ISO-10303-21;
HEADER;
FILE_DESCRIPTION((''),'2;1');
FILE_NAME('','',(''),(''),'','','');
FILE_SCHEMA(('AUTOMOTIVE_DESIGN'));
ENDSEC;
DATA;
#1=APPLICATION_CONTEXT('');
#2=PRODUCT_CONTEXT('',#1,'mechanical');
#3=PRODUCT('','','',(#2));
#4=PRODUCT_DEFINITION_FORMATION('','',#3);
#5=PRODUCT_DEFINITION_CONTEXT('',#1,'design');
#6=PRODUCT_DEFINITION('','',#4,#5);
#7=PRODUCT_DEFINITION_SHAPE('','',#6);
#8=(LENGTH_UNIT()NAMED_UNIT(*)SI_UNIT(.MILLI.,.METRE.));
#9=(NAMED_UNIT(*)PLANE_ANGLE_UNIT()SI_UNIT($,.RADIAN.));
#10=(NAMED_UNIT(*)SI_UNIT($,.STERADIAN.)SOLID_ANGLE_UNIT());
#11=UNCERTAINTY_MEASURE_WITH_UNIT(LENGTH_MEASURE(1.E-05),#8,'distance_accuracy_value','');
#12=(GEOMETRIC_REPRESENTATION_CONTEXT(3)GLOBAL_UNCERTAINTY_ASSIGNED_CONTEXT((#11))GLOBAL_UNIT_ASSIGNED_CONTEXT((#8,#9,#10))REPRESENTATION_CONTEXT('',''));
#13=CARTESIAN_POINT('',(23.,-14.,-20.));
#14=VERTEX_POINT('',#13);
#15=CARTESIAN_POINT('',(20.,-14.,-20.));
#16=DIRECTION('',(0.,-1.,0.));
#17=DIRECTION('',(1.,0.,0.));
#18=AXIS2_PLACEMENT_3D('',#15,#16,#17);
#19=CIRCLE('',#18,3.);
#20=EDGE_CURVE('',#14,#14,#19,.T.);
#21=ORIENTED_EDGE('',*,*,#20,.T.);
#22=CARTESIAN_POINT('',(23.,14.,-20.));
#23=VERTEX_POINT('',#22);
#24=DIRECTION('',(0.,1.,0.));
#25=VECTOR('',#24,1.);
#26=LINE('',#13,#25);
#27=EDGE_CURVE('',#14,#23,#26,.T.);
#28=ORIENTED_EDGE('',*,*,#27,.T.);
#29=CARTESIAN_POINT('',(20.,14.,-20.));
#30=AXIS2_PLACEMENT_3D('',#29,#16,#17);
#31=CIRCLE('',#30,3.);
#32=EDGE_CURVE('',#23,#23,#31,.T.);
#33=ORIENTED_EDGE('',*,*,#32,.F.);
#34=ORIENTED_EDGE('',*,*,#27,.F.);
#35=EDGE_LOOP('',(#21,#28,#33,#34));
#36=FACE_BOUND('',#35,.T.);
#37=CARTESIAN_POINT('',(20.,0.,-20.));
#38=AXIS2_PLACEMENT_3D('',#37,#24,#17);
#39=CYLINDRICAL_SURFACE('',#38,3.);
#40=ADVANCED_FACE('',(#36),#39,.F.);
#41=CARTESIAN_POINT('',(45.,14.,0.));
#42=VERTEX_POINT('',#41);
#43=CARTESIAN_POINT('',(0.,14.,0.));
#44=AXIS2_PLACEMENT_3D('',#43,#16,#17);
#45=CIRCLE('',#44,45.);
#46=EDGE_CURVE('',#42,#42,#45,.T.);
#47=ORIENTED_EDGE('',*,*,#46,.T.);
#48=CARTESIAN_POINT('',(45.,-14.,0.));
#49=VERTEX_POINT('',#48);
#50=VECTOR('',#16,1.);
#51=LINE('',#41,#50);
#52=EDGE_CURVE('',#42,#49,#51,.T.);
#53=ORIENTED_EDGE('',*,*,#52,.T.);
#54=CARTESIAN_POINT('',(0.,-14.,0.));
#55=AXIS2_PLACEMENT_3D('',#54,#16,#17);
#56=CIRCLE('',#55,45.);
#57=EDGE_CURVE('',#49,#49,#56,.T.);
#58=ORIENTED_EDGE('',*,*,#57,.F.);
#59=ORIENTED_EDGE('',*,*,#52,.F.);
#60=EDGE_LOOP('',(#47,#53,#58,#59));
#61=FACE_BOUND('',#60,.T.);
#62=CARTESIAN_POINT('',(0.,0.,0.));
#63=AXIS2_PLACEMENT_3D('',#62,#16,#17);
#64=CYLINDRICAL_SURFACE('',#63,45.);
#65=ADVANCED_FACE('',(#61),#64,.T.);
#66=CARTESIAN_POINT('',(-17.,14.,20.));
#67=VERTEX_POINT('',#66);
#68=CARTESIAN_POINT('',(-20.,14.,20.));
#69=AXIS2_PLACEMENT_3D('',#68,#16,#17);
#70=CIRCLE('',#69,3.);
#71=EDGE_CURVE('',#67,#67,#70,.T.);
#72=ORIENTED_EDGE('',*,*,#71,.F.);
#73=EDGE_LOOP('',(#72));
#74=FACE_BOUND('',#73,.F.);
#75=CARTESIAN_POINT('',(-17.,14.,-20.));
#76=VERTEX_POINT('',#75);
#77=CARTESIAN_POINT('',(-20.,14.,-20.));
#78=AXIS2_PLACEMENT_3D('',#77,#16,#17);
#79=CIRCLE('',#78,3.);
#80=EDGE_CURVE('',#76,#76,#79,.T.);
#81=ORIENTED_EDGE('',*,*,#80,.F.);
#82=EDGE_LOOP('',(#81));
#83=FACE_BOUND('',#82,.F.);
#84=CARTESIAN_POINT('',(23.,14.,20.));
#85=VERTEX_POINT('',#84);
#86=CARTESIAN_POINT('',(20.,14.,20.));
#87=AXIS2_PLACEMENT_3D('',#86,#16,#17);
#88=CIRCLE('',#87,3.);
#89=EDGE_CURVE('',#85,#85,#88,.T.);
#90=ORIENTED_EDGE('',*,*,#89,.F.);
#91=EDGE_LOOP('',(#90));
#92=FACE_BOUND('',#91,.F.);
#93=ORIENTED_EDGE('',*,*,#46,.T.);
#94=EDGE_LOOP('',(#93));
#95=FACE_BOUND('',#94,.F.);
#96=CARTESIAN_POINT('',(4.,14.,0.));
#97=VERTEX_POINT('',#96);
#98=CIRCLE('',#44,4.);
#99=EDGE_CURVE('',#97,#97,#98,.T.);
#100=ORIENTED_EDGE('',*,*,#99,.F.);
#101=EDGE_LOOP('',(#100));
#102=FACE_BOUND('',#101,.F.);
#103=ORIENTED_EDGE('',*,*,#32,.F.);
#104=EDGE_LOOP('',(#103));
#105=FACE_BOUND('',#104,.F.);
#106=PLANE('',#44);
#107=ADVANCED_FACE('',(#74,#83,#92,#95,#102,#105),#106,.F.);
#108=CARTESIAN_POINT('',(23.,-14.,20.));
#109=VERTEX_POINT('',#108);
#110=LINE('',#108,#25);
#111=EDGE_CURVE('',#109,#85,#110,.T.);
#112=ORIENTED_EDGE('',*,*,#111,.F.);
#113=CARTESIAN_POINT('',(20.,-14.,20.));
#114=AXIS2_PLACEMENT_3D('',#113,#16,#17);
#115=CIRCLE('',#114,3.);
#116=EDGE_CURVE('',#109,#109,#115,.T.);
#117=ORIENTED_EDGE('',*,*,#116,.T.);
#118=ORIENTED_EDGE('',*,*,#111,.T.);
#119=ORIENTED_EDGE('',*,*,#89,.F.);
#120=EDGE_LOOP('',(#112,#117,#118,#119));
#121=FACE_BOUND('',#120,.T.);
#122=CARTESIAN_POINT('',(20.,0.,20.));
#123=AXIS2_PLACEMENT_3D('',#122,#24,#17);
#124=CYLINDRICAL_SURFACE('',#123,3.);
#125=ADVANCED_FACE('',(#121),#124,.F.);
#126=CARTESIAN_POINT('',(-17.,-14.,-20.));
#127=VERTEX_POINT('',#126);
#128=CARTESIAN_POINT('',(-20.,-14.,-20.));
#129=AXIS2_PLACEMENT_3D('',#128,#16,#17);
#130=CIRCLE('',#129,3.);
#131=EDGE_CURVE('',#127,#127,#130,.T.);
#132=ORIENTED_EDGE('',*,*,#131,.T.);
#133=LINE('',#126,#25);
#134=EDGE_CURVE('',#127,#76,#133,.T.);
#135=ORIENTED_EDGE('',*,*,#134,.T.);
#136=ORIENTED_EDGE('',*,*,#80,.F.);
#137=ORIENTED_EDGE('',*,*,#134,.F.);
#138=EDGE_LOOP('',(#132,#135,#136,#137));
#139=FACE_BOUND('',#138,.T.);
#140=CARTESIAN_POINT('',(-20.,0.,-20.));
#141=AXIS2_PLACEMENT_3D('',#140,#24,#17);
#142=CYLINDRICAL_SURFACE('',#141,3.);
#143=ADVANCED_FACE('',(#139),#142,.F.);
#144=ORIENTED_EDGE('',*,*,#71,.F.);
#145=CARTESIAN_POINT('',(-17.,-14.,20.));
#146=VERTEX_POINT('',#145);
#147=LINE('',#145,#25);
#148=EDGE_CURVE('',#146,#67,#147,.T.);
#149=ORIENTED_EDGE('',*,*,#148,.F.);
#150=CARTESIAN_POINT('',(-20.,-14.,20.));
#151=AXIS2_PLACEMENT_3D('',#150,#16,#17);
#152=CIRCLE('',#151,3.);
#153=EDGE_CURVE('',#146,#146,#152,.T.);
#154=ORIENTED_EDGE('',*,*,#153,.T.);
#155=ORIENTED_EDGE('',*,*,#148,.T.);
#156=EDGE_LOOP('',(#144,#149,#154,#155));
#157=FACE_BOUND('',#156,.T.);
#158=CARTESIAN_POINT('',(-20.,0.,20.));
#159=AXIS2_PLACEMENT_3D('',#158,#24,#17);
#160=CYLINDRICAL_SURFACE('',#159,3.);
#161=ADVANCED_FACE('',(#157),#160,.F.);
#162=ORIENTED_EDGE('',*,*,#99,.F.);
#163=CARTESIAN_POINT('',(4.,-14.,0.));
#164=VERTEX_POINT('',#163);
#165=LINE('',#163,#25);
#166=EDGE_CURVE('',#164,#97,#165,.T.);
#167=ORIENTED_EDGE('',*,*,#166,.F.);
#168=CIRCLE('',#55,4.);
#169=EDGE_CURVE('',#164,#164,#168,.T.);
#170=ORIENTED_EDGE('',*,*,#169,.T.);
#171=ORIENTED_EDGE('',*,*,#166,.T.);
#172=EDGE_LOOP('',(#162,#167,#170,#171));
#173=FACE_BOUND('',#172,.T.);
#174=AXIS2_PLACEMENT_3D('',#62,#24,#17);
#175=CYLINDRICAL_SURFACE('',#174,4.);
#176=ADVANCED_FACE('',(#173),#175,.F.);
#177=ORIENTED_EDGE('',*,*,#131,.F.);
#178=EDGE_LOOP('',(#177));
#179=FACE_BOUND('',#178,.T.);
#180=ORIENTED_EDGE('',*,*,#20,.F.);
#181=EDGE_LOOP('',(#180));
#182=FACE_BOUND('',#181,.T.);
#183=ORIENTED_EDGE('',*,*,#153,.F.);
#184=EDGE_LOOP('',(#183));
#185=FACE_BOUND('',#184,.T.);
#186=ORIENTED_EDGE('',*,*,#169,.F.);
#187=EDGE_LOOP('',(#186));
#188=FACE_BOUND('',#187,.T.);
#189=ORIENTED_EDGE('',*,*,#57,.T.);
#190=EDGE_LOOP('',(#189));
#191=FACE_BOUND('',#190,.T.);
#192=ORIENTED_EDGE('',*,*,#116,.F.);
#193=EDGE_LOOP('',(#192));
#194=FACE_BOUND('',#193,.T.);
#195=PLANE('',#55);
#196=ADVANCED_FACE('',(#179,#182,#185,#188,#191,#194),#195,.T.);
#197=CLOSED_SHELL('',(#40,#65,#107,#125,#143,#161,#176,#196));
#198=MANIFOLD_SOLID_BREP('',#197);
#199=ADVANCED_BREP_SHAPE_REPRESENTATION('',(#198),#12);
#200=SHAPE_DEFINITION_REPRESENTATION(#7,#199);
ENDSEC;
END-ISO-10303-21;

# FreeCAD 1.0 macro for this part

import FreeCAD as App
import Part
import Sketcher

V = App.Vector
Q = App.Units.Quantity

doc = App.newDocument("Part")
params = doc.addObject("Spreadsheet::Sheet", "Params")
for row, (alias, value) in enumerate([
    ("sketch1_diameter", "90 mm"),
    ("sketch1_diameter2", "6 mm"),
    ("sketch1_diameter3", "8 mm"),
    ("pad1_length", "28 mm"),
], start=1):
    params.set(f"A{row}", alias)
    params.set(f"B{row}", "=" + value)
    params.setAlias(f"B{row}", alias)

body = doc.addObject("PartDesign::Body", "Body")

# Sketch on XZ plane
sketch1 = doc.addObject("Sketcher::SketchObject", "Sketch")
body.addObject(sketch1)
sketch1.AttachmentSupport = (doc.XZ_Plane, [""])
sketch1.MapMode = "FlatFace"
sketch1.addGeometry(Part.Circle(V(0, 0, 0), V(0, 0, 1), 45), False)
sketch1.addGeometry(Part.Circle(V(-20, -20, 0), V(0, 0, 1), 3), False)
sketch1.addGeometry(Part.Circle(V(20, -20, 0), V(0, 0, 1), 3), False)
sketch1.addGeometry(Part.Circle(V(-20, 20, 0), V(0, 0, 1), 3), False)
sketch1.addGeometry(Part.Circle(V(0, 0, 0), V(0, 0, 1), 4), False)
sketch1.addGeometry(Part.Circle(V(20, 20, 0), V(0, 0, 1), 3), False)
sketch1.addConstraint(Sketcher.Constraint("Coincident", 0, 3, -1, 1))
sketch1.addConstraint(Sketcher.Constraint("Coincident", 4, 3, -1, 1))
sketch1.addConstraint(Sketcher.Constraint("Equal", 1, 2))
sketch1.addConstraint(Sketcher.Constraint("Equal", 2, 3))
sketch1.addConstraint(Sketcher.Constraint("Equal", 3, 5))
sketch1.addConstraint(Sketcher.Constraint("Symmetric", 2, 3, 3, 3, -1, 1))
sketch1.addConstraint(Sketcher.Constraint("Symmetric", 1, 3, 5, 3, -1, 1))
sketch1.addConstraint(Sketcher.Constraint("Symmetric", 1, 3, 2, 3, -2))
sketch1.addConstraint(Sketcher.Constraint("Diameter", 0, Q("90 mm")))
sketch1.addConstraint(Sketcher.Constraint("Diameter", 1, Q("6 mm")))
sketch1.addConstraint(Sketcher.Constraint("Diameter", 4, Q("8 mm")))
sketch1.addConstraint(Sketcher.Constraint("DistanceX", 1, 3, -1, 1, Q("20 mm")))
sketch1.addConstraint(Sketcher.Constraint("DistanceY", 1, 3, -1, 1, Q("20 mm")))
sketch1.setExpression("Constraints[8]", "Params.sketch1_diameter")
sketch1.setExpression("Constraints[9]", "Params.sketch1_diameter2")
sketch1.setExpression("Constraints[10]", "Params.sketch1_diameter3")
pad1 = doc.addObject("PartDesign::Pad", "Pad")
body.addObject(pad1)
pad1.Profile = sketch1
pad1.setExpression("Length", "Params.pad1_length")
pad1.Midplane = True

doc.recompute()
